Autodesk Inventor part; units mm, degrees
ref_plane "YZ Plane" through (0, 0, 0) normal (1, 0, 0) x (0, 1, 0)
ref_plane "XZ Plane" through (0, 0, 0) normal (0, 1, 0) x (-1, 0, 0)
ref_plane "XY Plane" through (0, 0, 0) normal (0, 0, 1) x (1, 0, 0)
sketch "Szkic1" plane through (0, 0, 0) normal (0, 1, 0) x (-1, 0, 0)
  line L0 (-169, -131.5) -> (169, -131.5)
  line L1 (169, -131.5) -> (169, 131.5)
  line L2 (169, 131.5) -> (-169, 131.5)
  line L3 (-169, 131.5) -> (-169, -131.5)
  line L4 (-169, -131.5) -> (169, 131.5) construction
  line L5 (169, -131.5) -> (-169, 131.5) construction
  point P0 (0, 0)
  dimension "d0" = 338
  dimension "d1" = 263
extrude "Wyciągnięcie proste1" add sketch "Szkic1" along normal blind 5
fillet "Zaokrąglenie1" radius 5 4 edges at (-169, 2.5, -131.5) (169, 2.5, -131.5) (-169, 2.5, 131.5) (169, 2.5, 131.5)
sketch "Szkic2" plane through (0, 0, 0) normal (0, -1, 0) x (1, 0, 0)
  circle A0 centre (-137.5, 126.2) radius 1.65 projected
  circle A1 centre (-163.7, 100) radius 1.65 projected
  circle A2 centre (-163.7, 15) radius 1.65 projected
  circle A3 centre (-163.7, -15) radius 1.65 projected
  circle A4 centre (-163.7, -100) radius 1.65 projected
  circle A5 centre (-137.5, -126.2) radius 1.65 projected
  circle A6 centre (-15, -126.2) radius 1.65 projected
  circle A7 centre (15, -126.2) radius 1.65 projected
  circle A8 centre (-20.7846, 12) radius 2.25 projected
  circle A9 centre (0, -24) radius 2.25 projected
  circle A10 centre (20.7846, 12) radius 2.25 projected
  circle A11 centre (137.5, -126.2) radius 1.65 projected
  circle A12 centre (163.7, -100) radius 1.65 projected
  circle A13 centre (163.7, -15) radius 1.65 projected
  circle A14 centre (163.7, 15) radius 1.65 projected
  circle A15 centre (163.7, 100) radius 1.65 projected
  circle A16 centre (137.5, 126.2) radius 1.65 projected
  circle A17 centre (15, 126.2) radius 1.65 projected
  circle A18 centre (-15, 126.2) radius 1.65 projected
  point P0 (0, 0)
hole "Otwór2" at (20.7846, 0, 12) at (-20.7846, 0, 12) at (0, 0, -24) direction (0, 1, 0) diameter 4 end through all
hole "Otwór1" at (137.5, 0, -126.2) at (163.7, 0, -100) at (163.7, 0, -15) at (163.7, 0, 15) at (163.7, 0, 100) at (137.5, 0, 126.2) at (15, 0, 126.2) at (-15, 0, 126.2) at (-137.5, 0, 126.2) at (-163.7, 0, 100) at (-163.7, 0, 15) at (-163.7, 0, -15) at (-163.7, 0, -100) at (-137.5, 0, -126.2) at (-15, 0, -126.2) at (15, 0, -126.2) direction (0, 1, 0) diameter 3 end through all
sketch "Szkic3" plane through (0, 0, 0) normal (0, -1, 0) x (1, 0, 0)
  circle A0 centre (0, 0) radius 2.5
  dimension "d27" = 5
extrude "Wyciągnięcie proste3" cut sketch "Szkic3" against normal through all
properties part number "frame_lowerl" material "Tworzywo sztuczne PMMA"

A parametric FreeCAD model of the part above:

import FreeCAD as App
import Part
import Sketcher
Q = App.Units.Quantity


def edges_at(feature, points):
    """Names of the edges that pass closest to the given points."""
    edges = feature.Shape.Edges
    near = lambda p: min(range(len(edges)), key=lambda i: edges[i].distToShape(Part.Vertex(*p))[0])
    return sorted({f"Edge{near(p) + 1}" for p in points})


def add_polygon(sketch, points):
    """Adds a closed chain of lines whose ends are joined by coincident constraints."""
    first, n = sketch.GeometryCount, len(points)
    for a, b in zip(points, points[1:] + points[:1]):
        sketch.addGeometry(Part.LineSegment(App.Vector(*a, 0), App.Vector(*b, 0)), False)
    for i in range(n):
        sketch.addConstraint(Sketcher.Constraint("Coincident", first + i, 2, first + (i + 1) % n, 1))

doc = App.newDocument("Part")
body = doc.addObject("PartDesign::Body", "Body")

# Sketch on XZ plane
sketch1 = doc.addObject("Sketcher::SketchObject", "Sketch")
body.addObject(sketch1)
sketch1.AttachmentSupport = (doc.XZ_Plane, [""])
sketch1.MapMode = "FlatFace"
add_polygon(sketch1, [(169, 132), (169, -132), (-169, -132), (-169, 132)])  # lines 0-3
sketch1.addConstraint([
    Sketcher.Constraint("Vertical", 0),
    Sketcher.Constraint("Horizontal", 1),
    Sketcher.Constraint("Vertical", 2),
    Sketcher.Constraint("Horizontal", 3),
    Sketcher.Constraint("Symmetric", 0, 2, 2, 2, -1, 1),
    Sketcher.Constraint("DistanceX", 1, 2, 1, 1, Q("338 mm")),
    Sketcher.Constraint("DistanceY", 0, 2, 0, 1, Q("263 mm")),
])
pad1 = doc.addObject("PartDesign::Pad", "Pad")
body.addObject(pad1)
pad1.Profile = sketch1
pad1.Length = 5
pad1.Reversed = True
doc.recompute()

fillet = doc.addObject("PartDesign::Fillet", "Fillet")
body.addObject(fillet)
fillet.Base = (pad1, edges_at(pad1, [
    (-169, 2.5, -131.5),
    (169, 2.5, -131.5),
    (-169, 2.5, 131.5),
    (169, 2.5, 131.5),
]))
fillet.Radius = 5

# Sketch on XZ plane
sketch2 = doc.addObject("Sketcher::SketchObject", "Sketch001")
body.addObject(sketch2)
sketch2.AttachmentSupport = (doc.XZ_Plane, [""])
sketch2.MapMode = "FlatFace"
sketch2.addGeometry([
    Part.Circle(App.Vector(20.8, 12, 0), App.Vector(0, 0, 1), 2),
    Part.Circle(App.Vector(-20.8, 12, 0), App.Vector(0, 0, 1), 2),
    Part.Circle(App.Vector(0, -24, 0), App.Vector(0, 0, 1), 2),
], False)
sketch2.addConstraint([
    Sketcher.Constraint("Equal", 0, 1),
    Sketcher.Constraint("Equal", 1, 2),
    Sketcher.Constraint("Symmetric", 0, 3, 1, 3, -2),
    Sketcher.Constraint("PointOnObject", 2, 3, -2),
    Sketcher.Constraint("Diameter", 0, Q("4 mm")),
    Sketcher.Constraint("DistanceY", -1, 1, 0, 3, Q("12 mm")),
    Sketcher.Constraint("DistanceY", 2, 3, -1, 1, Q("24 mm")),
    Sketcher.Constraint("DistanceX", -1, 1, 0, 3, Q("20.7846 mm")),
])
doc.recompute()
hole = doc.addObject("PartDesign::Hole", "Hole")
body.addObject(hole)
hole.Profile = sketch2
hole.ThreadType = "None"
hole.Diameter = 4
hole.DepthType = "ThroughAll"

# Sketch on XZ plane
sketch3 = doc.addObject("Sketcher::SketchObject", "Sketch002")
body.addObject(sketch3)
sketch3.AttachmentSupport = (doc.XZ_Plane, [""])
sketch3.MapMode = "FlatFace"
sketch3.addGeometry([
    Part.Circle(App.Vector(137.5, -126.2, 0), App.Vector(0, 0, 1), 1.5),  # 0
    Part.Circle(App.Vector(163.7, -100, 0), App.Vector(0, 0, 1), 1.5),  # 1
    Part.Circle(App.Vector(163.7, -15, 0), App.Vector(0, 0, 1), 1.5),  # 2
    Part.Circle(App.Vector(163.7, 15, 0), App.Vector(0, 0, 1), 1.5),  # 3
    Part.Circle(App.Vector(163.7, 100, 0), App.Vector(0, 0, 1), 1.5),  # 4
    Part.Circle(App.Vector(137.5, 126.2, 0), App.Vector(0, 0, 1), 1.5),  # 5
    Part.Circle(App.Vector(15, 126.2, 0), App.Vector(0, 0, 1), 1.5),  # 6
    Part.Circle(App.Vector(-15, 126.2, 0), App.Vector(0, 0, 1), 1.5),  # 7
    Part.Circle(App.Vector(-137.5, 126.2, 0), App.Vector(0, 0, 1), 1.5),  # 8
    Part.Circle(App.Vector(-163.7, 100, 0), App.Vector(0, 0, 1), 1.5),  # 9
    Part.Circle(App.Vector(-163.7, 15, 0), App.Vector(0, 0, 1), 1.5),  # 10
    Part.Circle(App.Vector(-163.7, -15, 0), App.Vector(0, 0, 1), 1.5),  # 11
    Part.Circle(App.Vector(-163.7, -100, 0), App.Vector(0, 0, 1), 1.5),  # 12
    Part.Circle(App.Vector(-137.5, -126.2, 0), App.Vector(0, 0, 1), 1.5),  # 13
    Part.Circle(App.Vector(-15, -126.2, 0), App.Vector(0, 0, 1), 1.5),  # 14
    Part.Circle(App.Vector(15, -126.2, 0), App.Vector(0, 0, 1), 1.5),  # 15
], False)
sketch3.addConstraint([
    Sketcher.Constraint("Equal", 0, 1),
    Sketcher.Constraint("Equal", 1, 2),
    Sketcher.Constraint("Equal", 2, 3),
    Sketcher.Constraint("Equal", 3, 4),
    Sketcher.Constraint("Equal", 4, 5),
    Sketcher.Constraint("Equal", 5, 6),
    Sketcher.Constraint("Equal", 6, 7),
    Sketcher.Constraint("Equal", 7, 8),
    Sketcher.Constraint("Equal", 8, 9),
    Sketcher.Constraint("Equal", 9, 10),
    Sketcher.Constraint("Equal", 10, 11),
    Sketcher.Constraint("Equal", 11, 12),
    Sketcher.Constraint("Equal", 12, 13),
    Sketcher.Constraint("Equal", 13, 14),
    Sketcher.Constraint("Equal", 14, 15),
    Sketcher.Constraint("Symmetric", 0, 3, 8, 3, -1, 1),
    Sketcher.Constraint("Symmetric", 1, 3, 9, 3, -1, 1),
    Sketcher.Constraint("Symmetric", 2, 3, 10, 3, -1, 1),
    Sketcher.Constraint("Symmetric", 3, 3, 11, 3, -1, 1),
    Sketcher.Constraint("Symmetric", 4, 3, 12, 3, -1, 1),
    Sketcher.Constraint("Symmetric", 5, 3, 13, 3, -1, 1),
    Sketcher.Constraint("Symmetric", 6, 3, 14, 3, -1, 1),
    Sketcher.Constraint("Symmetric", 7, 3, 15, 3, -1, 1),
    Sketcher.Constraint("Symmetric", 6, 3, 7, 3, -2),
    Sketcher.Constraint("Symmetric", 5, 3, 8, 3, -2),
    Sketcher.Constraint("Symmetric", 4, 3, 9, 3, -2),
    Sketcher.Constraint("Symmetric", 3, 3, 10, 3, -2),
    Sketcher.Constraint("Horizontal", 5, 3, 6, 3),
    Sketcher.Constraint("Vertical", 1, 3, 2, 3),
    Sketcher.Constraint("Diameter", 0, Q("3 mm")),
    Sketcher.Constraint("DistanceY", 1, 3, -1, 1, Q("100 mm")),
    Sketcher.Constraint("DistanceY", 2, 3, -1, 1, Q("15 mm")),
    Sketcher.Constraint("DistanceX", -1, 1, 6, 3, Q("15 mm")),
    Sketcher.Constraint("DistanceX", 8, 3, 5, 3, Q("275 mm")),
    Sketcher.Constraint("DistanceY", 0, 3, -1, 1, Q("126.2 mm")),
    Sketcher.Constraint("DistanceX", -1, 1, 1, 3, Q("163.7 mm")),
])
doc.recompute()
hole2 = doc.addObject("PartDesign::Hole", "Hole001")
body.addObject(hole2)
hole2.Profile = sketch3
hole2.ThreadType = "None"
hole2.Diameter = 3
hole2.DepthType = "ThroughAll"

# Sketch on XZ plane
sketch4 = doc.addObject("Sketcher::SketchObject", "Sketch003")
body.addObject(sketch4)
sketch4.AttachmentSupport = (doc.XZ_Plane, [""])
sketch4.MapMode = "FlatFace"
sketch4.addGeometry(Part.Circle(App.Vector(0, 0, 0), App.Vector(0, 0, 1), 2.5), False)
sketch4.addConstraint([
    Sketcher.Constraint("Coincident", 0, 3, -1, 1),
    Sketcher.Constraint("Diameter", 0, Q("5 mm")),
])
pocket1 = doc.addObject("PartDesign::Pocket", "Pocket")
body.addObject(pocket1)
pocket1.Profile = sketch4
pocket1.Type = "ThroughAll"

doc.recompute()
